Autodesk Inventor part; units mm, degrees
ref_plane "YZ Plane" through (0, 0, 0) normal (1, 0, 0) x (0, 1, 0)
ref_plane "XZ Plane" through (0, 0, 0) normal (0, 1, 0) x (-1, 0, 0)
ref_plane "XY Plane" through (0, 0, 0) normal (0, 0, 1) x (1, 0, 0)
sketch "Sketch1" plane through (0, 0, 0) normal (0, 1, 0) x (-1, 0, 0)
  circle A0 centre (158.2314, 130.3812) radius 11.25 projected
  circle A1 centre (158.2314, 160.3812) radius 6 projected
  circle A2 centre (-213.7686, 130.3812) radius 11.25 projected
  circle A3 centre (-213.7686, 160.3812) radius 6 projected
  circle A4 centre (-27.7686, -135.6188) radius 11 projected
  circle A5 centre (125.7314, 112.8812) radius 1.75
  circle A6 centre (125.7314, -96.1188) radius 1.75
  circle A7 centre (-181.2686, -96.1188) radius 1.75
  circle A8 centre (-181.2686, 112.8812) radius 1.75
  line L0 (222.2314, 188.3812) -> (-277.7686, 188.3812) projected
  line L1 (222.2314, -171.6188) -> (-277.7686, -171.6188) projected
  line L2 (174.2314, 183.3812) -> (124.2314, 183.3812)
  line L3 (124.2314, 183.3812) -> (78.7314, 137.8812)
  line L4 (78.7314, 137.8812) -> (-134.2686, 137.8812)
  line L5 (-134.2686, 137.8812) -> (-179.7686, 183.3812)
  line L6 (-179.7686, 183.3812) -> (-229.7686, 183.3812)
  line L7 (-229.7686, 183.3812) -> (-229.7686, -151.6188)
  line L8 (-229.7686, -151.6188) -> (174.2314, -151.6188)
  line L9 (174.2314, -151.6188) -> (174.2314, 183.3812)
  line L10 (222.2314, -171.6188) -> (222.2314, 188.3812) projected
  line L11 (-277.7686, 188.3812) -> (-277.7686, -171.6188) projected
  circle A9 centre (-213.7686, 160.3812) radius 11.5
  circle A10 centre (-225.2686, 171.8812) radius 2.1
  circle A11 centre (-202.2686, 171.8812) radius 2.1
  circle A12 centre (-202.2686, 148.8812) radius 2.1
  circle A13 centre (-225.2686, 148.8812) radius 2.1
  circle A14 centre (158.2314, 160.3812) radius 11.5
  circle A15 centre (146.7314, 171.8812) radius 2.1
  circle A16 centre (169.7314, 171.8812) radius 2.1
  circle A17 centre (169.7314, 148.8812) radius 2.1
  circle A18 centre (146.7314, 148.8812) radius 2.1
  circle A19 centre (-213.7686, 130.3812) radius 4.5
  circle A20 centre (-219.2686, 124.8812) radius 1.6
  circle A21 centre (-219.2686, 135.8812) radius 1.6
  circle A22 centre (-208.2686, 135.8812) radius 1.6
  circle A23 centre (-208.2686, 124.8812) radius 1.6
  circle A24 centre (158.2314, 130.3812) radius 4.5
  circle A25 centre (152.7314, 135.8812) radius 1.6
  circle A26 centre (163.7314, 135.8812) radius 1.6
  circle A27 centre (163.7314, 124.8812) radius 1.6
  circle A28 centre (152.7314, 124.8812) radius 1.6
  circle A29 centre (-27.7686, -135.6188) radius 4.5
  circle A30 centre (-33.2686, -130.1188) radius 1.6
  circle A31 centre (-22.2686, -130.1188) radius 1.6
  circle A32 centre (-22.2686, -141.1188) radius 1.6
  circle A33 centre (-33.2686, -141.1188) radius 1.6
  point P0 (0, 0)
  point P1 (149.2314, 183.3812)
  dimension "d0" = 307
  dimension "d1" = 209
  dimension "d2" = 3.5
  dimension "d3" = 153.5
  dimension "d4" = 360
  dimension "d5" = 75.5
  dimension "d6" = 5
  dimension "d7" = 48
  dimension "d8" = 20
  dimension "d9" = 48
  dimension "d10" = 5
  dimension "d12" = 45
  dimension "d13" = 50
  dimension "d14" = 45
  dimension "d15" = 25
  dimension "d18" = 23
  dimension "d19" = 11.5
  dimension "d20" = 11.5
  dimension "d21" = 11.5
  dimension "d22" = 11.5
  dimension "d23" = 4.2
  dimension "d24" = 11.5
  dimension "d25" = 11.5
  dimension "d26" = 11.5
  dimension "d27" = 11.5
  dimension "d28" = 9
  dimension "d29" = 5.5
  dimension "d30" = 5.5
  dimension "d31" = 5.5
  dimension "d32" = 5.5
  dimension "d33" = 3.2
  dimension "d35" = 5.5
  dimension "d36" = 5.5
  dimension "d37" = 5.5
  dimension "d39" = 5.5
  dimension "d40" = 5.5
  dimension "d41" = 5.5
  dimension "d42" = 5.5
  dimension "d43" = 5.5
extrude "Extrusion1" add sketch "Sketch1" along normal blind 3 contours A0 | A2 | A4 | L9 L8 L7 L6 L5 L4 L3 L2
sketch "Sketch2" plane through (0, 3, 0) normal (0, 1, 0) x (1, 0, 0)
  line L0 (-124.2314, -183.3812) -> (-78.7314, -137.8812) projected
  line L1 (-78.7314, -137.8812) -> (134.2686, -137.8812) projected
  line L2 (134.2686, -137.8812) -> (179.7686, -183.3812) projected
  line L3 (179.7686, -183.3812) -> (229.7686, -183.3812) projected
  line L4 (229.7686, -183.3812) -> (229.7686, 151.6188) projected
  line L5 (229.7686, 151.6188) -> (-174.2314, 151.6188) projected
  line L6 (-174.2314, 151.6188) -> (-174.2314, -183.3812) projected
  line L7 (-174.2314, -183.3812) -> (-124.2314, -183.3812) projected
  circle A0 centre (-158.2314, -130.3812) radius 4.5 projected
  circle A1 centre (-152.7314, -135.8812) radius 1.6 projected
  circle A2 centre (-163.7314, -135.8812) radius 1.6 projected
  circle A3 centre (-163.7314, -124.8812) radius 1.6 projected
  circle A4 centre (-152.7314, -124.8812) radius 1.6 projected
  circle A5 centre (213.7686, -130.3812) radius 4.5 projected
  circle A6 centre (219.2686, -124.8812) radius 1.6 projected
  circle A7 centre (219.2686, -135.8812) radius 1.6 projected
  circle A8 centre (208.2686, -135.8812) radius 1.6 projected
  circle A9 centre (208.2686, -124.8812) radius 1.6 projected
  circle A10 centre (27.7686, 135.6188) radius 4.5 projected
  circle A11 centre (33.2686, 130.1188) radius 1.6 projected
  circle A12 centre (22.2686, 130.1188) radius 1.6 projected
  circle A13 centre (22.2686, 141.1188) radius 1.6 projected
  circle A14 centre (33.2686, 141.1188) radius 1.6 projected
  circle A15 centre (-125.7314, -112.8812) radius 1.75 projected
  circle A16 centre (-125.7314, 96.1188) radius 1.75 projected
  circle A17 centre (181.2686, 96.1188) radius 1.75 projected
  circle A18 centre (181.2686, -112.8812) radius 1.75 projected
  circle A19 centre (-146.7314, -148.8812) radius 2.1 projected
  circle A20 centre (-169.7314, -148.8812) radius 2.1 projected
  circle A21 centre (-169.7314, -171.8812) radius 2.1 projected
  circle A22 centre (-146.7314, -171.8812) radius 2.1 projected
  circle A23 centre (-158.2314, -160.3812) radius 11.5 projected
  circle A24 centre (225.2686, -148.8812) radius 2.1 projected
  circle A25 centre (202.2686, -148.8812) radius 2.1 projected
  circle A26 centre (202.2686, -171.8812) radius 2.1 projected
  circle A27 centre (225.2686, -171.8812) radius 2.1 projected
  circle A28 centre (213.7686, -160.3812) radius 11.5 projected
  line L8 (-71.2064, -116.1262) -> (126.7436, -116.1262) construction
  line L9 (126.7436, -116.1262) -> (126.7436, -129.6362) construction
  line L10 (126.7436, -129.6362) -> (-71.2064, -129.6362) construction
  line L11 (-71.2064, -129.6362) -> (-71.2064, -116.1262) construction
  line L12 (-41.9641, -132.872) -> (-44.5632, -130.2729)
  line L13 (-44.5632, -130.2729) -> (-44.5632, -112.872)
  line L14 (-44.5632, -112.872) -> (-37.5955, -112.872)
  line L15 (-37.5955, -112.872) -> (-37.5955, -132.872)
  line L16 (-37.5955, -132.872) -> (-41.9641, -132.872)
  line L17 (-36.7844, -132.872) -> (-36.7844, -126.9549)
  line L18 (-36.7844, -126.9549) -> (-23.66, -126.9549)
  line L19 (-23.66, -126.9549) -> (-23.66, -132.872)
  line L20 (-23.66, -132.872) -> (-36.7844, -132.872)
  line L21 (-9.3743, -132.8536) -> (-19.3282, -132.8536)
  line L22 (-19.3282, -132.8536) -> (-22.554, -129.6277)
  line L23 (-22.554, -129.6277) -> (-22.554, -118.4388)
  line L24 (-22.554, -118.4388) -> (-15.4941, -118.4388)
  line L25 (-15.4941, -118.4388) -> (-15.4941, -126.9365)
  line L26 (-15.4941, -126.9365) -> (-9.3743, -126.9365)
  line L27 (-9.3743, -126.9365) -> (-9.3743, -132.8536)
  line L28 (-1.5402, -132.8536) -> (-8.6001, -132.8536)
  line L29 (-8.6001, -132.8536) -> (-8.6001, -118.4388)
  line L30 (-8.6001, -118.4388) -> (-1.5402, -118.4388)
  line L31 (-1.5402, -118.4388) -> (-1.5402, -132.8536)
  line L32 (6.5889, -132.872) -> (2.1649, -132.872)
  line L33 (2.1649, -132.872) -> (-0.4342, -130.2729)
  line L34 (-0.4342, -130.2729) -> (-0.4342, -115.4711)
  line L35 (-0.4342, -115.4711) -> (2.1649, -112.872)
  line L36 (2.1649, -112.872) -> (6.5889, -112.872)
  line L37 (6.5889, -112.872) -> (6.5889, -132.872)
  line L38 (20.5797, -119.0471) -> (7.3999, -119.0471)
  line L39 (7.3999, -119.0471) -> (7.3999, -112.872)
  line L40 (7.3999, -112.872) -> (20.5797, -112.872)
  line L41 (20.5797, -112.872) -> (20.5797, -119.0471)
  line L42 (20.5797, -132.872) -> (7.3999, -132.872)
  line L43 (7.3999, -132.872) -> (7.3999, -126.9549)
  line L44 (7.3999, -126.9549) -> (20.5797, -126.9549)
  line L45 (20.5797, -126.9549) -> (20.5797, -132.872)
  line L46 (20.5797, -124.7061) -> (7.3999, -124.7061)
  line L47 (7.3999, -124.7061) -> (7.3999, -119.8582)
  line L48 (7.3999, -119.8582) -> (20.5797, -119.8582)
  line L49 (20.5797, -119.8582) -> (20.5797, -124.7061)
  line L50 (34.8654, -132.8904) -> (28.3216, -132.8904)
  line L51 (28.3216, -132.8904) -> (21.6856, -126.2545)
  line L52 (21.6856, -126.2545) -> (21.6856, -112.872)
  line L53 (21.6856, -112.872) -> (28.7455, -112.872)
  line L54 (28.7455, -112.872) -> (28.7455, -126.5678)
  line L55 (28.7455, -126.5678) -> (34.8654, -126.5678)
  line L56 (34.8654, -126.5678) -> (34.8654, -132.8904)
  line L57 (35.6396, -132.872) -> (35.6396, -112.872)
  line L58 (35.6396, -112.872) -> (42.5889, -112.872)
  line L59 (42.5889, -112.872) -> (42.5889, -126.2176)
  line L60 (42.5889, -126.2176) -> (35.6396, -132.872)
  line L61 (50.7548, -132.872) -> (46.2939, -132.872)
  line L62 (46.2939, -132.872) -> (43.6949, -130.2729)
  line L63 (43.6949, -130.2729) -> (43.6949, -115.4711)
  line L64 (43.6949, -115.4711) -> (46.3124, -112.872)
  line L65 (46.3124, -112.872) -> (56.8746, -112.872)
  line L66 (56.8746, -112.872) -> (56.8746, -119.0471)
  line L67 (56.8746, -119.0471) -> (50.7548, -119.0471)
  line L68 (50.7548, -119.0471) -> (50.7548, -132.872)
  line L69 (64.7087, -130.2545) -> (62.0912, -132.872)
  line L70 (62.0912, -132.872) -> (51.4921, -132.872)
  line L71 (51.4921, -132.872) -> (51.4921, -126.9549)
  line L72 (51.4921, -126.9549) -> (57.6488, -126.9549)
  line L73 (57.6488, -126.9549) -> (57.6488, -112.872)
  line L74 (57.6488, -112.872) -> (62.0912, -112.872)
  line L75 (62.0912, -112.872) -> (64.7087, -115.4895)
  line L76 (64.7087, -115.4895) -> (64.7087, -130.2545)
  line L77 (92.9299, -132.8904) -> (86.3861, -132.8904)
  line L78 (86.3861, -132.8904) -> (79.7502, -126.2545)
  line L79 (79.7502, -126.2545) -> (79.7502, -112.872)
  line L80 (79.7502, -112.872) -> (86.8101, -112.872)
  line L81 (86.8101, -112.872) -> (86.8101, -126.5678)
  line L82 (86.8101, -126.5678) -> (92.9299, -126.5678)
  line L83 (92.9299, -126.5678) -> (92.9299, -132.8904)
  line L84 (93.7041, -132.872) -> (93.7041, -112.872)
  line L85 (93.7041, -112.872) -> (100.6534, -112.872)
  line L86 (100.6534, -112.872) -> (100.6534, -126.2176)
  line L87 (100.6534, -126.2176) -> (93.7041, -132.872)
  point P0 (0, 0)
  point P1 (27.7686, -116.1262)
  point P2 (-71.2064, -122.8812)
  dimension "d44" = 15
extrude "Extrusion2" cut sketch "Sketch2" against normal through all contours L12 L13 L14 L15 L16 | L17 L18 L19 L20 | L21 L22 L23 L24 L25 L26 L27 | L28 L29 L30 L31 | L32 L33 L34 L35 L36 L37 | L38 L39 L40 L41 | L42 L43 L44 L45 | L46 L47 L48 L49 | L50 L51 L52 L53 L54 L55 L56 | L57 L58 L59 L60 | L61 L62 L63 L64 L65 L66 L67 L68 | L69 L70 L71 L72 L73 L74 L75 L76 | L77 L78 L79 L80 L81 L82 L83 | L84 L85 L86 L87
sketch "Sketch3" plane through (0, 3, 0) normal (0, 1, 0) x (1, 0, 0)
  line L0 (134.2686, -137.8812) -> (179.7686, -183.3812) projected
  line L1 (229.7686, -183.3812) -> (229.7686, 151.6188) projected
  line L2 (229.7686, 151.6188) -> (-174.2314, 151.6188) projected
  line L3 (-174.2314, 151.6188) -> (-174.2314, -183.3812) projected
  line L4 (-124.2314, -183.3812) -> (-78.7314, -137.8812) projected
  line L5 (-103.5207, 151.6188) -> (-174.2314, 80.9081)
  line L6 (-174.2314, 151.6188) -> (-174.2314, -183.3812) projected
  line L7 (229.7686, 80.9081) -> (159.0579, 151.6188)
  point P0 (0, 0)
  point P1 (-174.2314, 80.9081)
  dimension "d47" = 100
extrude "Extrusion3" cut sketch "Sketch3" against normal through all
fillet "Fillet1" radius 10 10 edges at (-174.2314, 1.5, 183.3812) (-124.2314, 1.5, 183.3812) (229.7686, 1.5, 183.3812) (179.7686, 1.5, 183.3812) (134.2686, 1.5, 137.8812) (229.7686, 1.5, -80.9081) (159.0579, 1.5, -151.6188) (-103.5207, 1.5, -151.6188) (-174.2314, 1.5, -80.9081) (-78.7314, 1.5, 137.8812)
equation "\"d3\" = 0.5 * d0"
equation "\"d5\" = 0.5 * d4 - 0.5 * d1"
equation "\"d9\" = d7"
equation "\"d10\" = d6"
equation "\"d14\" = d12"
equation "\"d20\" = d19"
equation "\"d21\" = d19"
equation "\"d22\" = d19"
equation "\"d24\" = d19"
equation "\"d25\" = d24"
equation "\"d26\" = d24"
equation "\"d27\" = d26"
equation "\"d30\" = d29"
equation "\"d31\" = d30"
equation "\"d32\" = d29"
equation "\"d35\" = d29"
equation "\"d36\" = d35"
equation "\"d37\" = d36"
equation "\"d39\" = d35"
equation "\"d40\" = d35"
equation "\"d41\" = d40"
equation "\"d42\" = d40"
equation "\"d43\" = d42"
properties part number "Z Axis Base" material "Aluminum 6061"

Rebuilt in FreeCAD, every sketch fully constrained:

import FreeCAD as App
import Part
import Sketcher


def edges_at(feature, points):
    """Names of the edges that pass closest to the given points."""
    edges = feature.Shape.Edges
    near = lambda p: min(range(len(edges)), key=lambda i: edges[i].distToShape(Part.Vertex(*p))[0])
    return sorted({f"Edge{near(p) + 1}" for p in points})

doc = App.newDocument("Part")
body = doc.addObject("PartDesign::Body", "Body")

# Sketch on XZ plane
sketch1 = doc.addObject("Sketcher::SketchObject", "Sketch")
body.addObject(sketch1)
sketch1.AttachmentSupport = (doc.XZ_Plane, [""])
sketch1.MapMode = "FlatFace"
sketch1.addGeometry([
    Part.LineSegment(App.Vector(-174.2, -151.6, 0), App.Vector(-174.2, 183.4, 0)),  # 0
    Part.LineSegment(App.Vector(-174.2, 183.4, 0), App.Vector(-124.2, 183.4, 0)),  # 1
    Part.LineSegment(App.Vector(-124.2, 183.4, 0), App.Vector(-78.7, 137.9, 0)),  # 2
    Part.LineSegment(App.Vector(-78.7, 137.9, 0), App.Vector(134.3, 137.9, 0)),  # 3
    Part.LineSegment(App.Vector(134.3, 137.9, 0), App.Vector(179.8, 183.4, 0)),  # 4
    Part.LineSegment(App.Vector(179.8, 183.4, 0), App.Vector(229.8, 183.4, 0)),  # 5
    Part.LineSegment(App.Vector(229.8, 183.4, 0), App.Vector(229.8, -151.6, 0)),  # 6
    Part.LineSegment(App.Vector(229.8, -151.6, 0), App.Vector(-174.2, -151.6, 0)),  # 7
    Part.Circle(App.Vector(-152.7, 124.9, 0), App.Vector(0, 0, 1), 1.6),  # 8
    Part.Circle(App.Vector(-158.2, 130.4, 0), App.Vector(0, 0, 1), 4.5),  # 9
    Part.Circle(App.Vector(-152.7, 135.9, 0), App.Vector(0, 0, 1), 1.6),  # 10
    Part.Circle(App.Vector(-163.7, 124.9, 0), App.Vector(0, 0, 1), 1.6),  # 11
    Part.Circle(App.Vector(-163.7, 135.9, 0), App.Vector(0, 0, 1), 1.6),  # 12
    Part.Circle(App.Vector(181.3, -96.1, 0), App.Vector(0, 0, 1), 1.8),  # 13
    Part.Circle(App.Vector(-125.7, -96.1, 0), App.Vector(0, 0, 1), 1.8),  # 14
    Part.Circle(App.Vector(181.3, 112.9, 0), App.Vector(0, 0, 1), 1.8),  # 15
    Part.Circle(App.Vector(225.3, 148.9, 0), App.Vector(0, 0, 1), 2.1),  # 16
    Part.Circle(App.Vector(225.3, 171.9, 0), App.Vector(0, 0, 1), 2.1),  # 17
    Part.Circle(App.Vector(202.3, 148.9, 0), App.Vector(0, 0, 1), 2.1),  # 18
    Part.Circle(App.Vector(213.8, 160.4, 0), App.Vector(0, 0, 1), 11.5),  # 19
    Part.Circle(App.Vector(202.3, 171.9, 0), App.Vector(0, 0, 1), 2.1),  # 20
    Part.Circle(App.Vector(-125.7, 112.9, 0), App.Vector(0, 0, 1), 1.8),  # 21
    Part.Circle(App.Vector(-169.7, 171.9, 0), App.Vector(0, 0, 1), 2.1),  # 22
    Part.Circle(App.Vector(-146.7, 148.9, 0), App.Vector(0, 0, 1), 2.1),  # 23
    Part.Circle(App.Vector(-158.2, 160.4, 0), App.Vector(0, 0, 1), 11.5),  # 24
    Part.Circle(App.Vector(-146.7, 171.9, 0), App.Vector(0, 0, 1), 2.1),  # 25
    Part.Circle(App.Vector(-169.7, 148.9, 0), App.Vector(0, 0, 1), 2.1),  # 26
    Part.Circle(App.Vector(22.3, -130.1, 0), App.Vector(0, 0, 1), 1.6),  # 27
    Part.Circle(App.Vector(33.3, -141.1, 0), App.Vector(0, 0, 1), 1.6),  # 28
    Part.Circle(App.Vector(33.3, -130.1, 0), App.Vector(0, 0, 1), 1.6),  # 29
    Part.Circle(App.Vector(22.3, -141.1, 0), App.Vector(0, 0, 1), 1.6),  # 30
    Part.Circle(App.Vector(27.8, -135.6, 0), App.Vector(0, 0, 1), 4.5),  # 31
    Part.Circle(App.Vector(208.3, 135.9, 0), App.Vector(0, 0, 1), 1.6),  # 32
    Part.Circle(App.Vector(219.3, 124.9, 0), App.Vector(0, 0, 1), 1.6),  # 33
    Part.Circle(App.Vector(219.3, 135.9, 0), App.Vector(0, 0, 1), 1.6),  # 34
    Part.Circle(App.Vector(208.3, 124.9, 0), App.Vector(0, 0, 1), 1.6),  # 35
    Part.Circle(App.Vector(213.8, 130.4, 0), App.Vector(0, 0, 1), 4.5),  # 36
], False)
sketch1.addConstraint([
    Sketcher.Constraint("Coincident", 0, 2, 1, 1),
    Sketcher.Constraint("Coincident", 1, 2, 2, 1),
    Sketcher.Constraint("Coincident", 2, 2, 3, 1),
    Sketcher.Constraint("Coincident", 3, 2, 4, 1),
    Sketcher.Constraint("Coincident", 4, 2, 5, 1),
    Sketcher.Constraint("Coincident", 5, 2, 6, 1),
    Sketcher.Constraint("Coincident", 6, 2, 7, 1),
    Sketcher.Constraint("Coincident", 7, 2, 0, 1),
    Sketcher.Constraint("Vertical", 0),
    Sketcher.Constraint("Horizontal", 1),
    Sketcher.Constraint("Horizontal", 3),
    Sketcher.Constraint("Horizontal", 5),
    Sketcher.Constraint("Vertical", 6),
    Sketcher.Constraint("Horizontal", 7),
    Sketcher.Constraint("Equal", 8, 10),
    Sketcher.Constraint("Equal", 10, 11),
    Sketcher.Constraint("Equal", 11, 12),
    Sketcher.Constraint("Equal", 13, 14),
    Sketcher.Constraint("Equal", 14, 15),
    Sketcher.Constraint("Equal", 16, 17),
    Sketcher.Constraint("Equal", 17, 18),
    Sketcher.Constraint("Equal", 18, 20),
    Sketcher.Constraint("Equal", 15, 21),
    Sketcher.Constraint("Equal", 20, 22),
    Sketcher.Constraint("Equal", 22, 23),
    Sketcher.Constraint("Equal", 19, 24),
    Sketcher.Constraint("Equal", 23, 25),
    Sketcher.Constraint("Equal", 25, 26),
    Sketcher.Constraint("Equal", 12, 27),
    Sketcher.Constraint("Equal", 27, 28),
    Sketcher.Constraint("Equal", 28, 29),
    Sketcher.Constraint("Equal", 29, 30),
    Sketcher.Constraint("Equal", 9, 31),
    Sketcher.Constraint("Equal", 30, 32),
    Sketcher.Constraint("Equal", 32, 33),
    Sketcher.Constraint("Equal", 33, 34),
    Sketcher.Constraint("Equal", 34, 35),
    Sketcher.Constraint("Equal", 31, 36),
    Sketcher.Constraint("Perpendicular", 2, 4),
    Sketcher.Constraint("Horizontal", 8, 3, 11, 3),
    Sketcher.Constraint("Horizontal", 10, 3, 12, 3),
    Sketcher.Constraint("Horizontal", 13, 3, 14, 3),
    Sketcher.Constraint("Horizontal", 16, 3, 18, 3),
    Sketcher.Constraint("Horizontal", 17, 3, 20, 3),
    Sketcher.Constraint("Horizontal", 15, 3, 21, 3),
    Sketcher.Constraint("Horizontal", 20, 3, 22, 3),
    Sketcher.Constraint("Horizontal", 18, 3, 23, 3),
    Sketcher.Constraint("Horizontal", 19, 3, 24, 3),
    Sketcher.Constraint("Horizontal", 22, 3, 25, 3),
    Sketcher.Constraint("Horizontal", 23, 3, 26, 3),
    Sketcher.Constraint("Horizontal", 27, 3, 29, 3),
    Sketcher.Constraint("Horizontal", 28, 3, 30, 3),
    Sketcher.Constraint("Horizontal", 12, 3, 32, 3),
    Sketcher.Constraint("Horizontal", 11, 3, 33, 3),
    Sketcher.Constraint("Horizontal", 32, 3, 34, 3),
    Sketcher.Constraint("Horizontal", 33, 3, 35, 3),
    Sketcher.Constraint("Horizontal", 9, 3, 36, 3),
    Sketcher.Constraint("Horizontal", 1, 2, 4, 2),
    Sketcher.Constraint("Vertical", 8, 3, 10, 3),
    Sketcher.Constraint("Vertical", 11, 3, 12, 3),
    Sketcher.Constraint("Vertical", 13, 3, 15, 3),
    Sketcher.Constraint("Vertical", 16, 3, 17, 3),
    Sketcher.Constraint("Vertical", 18, 3, 20, 3),
    Sketcher.Constraint("Vertical", 14, 3, 21, 3),
    Sketcher.Constraint("Vertical", 9, 3, 24, 3),
    Sketcher.Constraint("Vertical", 23, 3, 25, 3),
    Sketcher.Constraint("Vertical", 22, 3, 26, 3),
    Sketcher.Constraint("Vertical", 28, 3, 29, 3),
    Sketcher.Constraint("Vertical", 27, 3, 30, 3),
    Sketcher.Constraint("Vertical", 33, 3, 34, 3),
    Sketcher.Constraint("Vertical", 32, 3, 35, 3),
    Sketcher.Constraint("Vertical", 19, 3, 36, 3),
    Sketcher.Constraint("Equal", 1, 5),
    Sketcher.Constraint("Equal", 2, 4),
    Sketcher.Constraint("Diameter", 9, 9.0),
    Sketcher.Constraint("Diameter", 19, 23.0),
    Sketcher.Constraint("Diameter", 8, 3.2),
    Sketcher.Constraint("Diameter", 13, 3.5),
    Sketcher.Constraint("Diameter", 16, 4.2),
    Sketcher.Constraint("DistanceX", 1, 1, 1, 2, 50.0),
    Sketcher.Constraint("DistanceY", 13, 3, 15, 3, 209.0),
    Sketcher.Constraint("DistanceY", 15, 3, 10, 3, 23.0),
    Sketcher.Constraint("DistanceY", 16, 3, 17, 3, 23.0),
    Sketcher.Constraint("DistanceX", 18, 3, 16, 3, 23.0),
    Sketcher.Constraint("DistanceX", 22, 3, 25, 3, 23.0),
    Sketcher.Constraint("DistanceY", 28, 3, 13, 3, 45.0),
    Sketcher.Constraint("DistanceY", 24, 3, 0, 2, 23.0),
    Sketcher.Constraint("DistanceY", 21, 3, 2, 2, 25.0),
    Sketcher.Constraint("DistanceX", 9, 3, 8, 3, 5.5),
    Sketcher.Constraint("DistanceY", 8, 3, 9, 3, 5.5),
    Sketcher.Constraint("DistanceY", 9, 3, 10, 3, 5.5),
    Sketcher.Constraint("DistanceX", 11, 3, 9, 3, 5.5),
    Sketcher.Constraint("DistanceX", 19, 3, 16, 3, 11.5),
    Sketcher.Constraint("DistanceY", 16, 3, 19, 3, 11.5),
    Sketcher.Constraint("DistanceX", 22, 3, 9, 3, 11.5),
    Sketcher.Constraint("DistanceX", 27, 3, 31, 3, 5.5),
    Sketcher.Constraint("DistanceY", 31, 3, 27, 3, 5.5),
    Sketcher.Constraint("DistanceX", 31, 3, 28, 3, 5.5),
    Sketcher.Constraint("DistanceY", 28, 3, 31, 3, 5.5),
    Sketcher.Constraint("DistanceX", 31, 3, 13, 3, 153.5),
    Sketcher.Constraint("DistanceX", 32, 3, 19, 3, 5.5),
    Sketcher.Constraint("DistanceX", 19, 3, 33, 3, 5.5),
    Sketcher.Constraint("DistanceX", 3, 1, 3, 2, 213.0),
    Sketcher.Constraint("DistanceX", 7, 2, 7, 1, 404.0),
    Sketcher.Constraint("DistanceY", 0, 1, 0, 2, 335.0),
    Sketcher.Constraint("DistanceX", 8, 3, 13, 3, 334.0),
    Sketcher.Constraint("DistanceX", 8, 3, 14, 3, 27.0),
    Sketcher.Constraint("DistanceX", 15, 3, 16, 3, 44.0),
    Sketcher.Constraint("DistanceX", 0, 2, 24, 3, 16.0),
    Sketcher.Constraint("DistanceX", 8, 3, -1, 1, 152.7314),
    Sketcher.Constraint("DistanceY", -1, 1, 8, 3, 124.8812),
])
pad1 = doc.addObject("PartDesign::Pad", "Pad")
body.addObject(pad1)
pad1.Profile = sketch1
pad1.Length = 3
pad1.Reversed = True

# Sketch on XZ plane
sketch2 = doc.addObject("Sketcher::SketchObject", "Sketch001")
body.addObject(sketch2)
sketch2.AttachmentSupport = (doc.XZ_Plane, [""])
sketch2.MapMode = "FlatFace"
sketch2.AttachmentOffset = App.Placement(App.Vector(0, 0, -3), App.Rotation())
sketch2.addGeometry([
    Part.LineSegment(App.Vector(-44.6, 130.3, 0), App.Vector(-42, 132.9, 0)),  # 0
    Part.LineSegment(App.Vector(-42, 132.9, 0), App.Vector(-37.6, 132.9, 0)),  # 1
    Part.LineSegment(App.Vector(-37.6, 132.9, 0), App.Vector(-37.6, 112.9, 0)),  # 2
    Part.LineSegment(App.Vector(-37.6, 112.9, 0), App.Vector(-44.6, 112.9, 0)),  # 3
    Part.LineSegment(App.Vector(-44.6, 112.9, 0), App.Vector(-44.6, 130.3, 0)),  # 4
    Part.LineSegment(App.Vector(-36.8, 127, 0), App.Vector(-36.8, 132.9, 0)),  # 5
    Part.LineSegment(App.Vector(-36.8, 132.9, 0), App.Vector(-23.7, 132.9, 0)),  # 6
    Part.LineSegment(App.Vector(-23.7, 132.9, 0), App.Vector(-23.7, 127, 0)),  # 7
    Part.LineSegment(App.Vector(-23.7, 127, 0), App.Vector(-36.8, 127, 0)),  # 8
    Part.LineSegment(App.Vector(-19.3, 132.9, 0), App.Vector(-9.4, 132.9, 0)),  # 9
    Part.LineSegment(App.Vector(-9.4, 132.9, 0), App.Vector(-9.4, 126.9, 0)),  # 10
    Part.LineSegment(App.Vector(-9.4, 126.9, 0), App.Vector(-15.5, 126.9, 0)),  # 11
    Part.LineSegment(App.Vector(-15.5, 126.9, 0), App.Vector(-15.5, 118.4, 0)),  # 12
    Part.LineSegment(App.Vector(-15.5, 118.4, 0), App.Vector(-22.6, 118.4, 0)),  # 13
    Part.LineSegment(App.Vector(-22.6, 118.4, 0), App.Vector(-22.6, 129.6, 0)),  # 14
    Part.LineSegment(App.Vector(-22.6, 129.6, 0), App.Vector(-19.3, 132.9, 0)),  # 15
    Part.LineSegment(App.Vector(-8.6, 132.9, 0), App.Vector(-1.5, 132.9, 0)),  # 16
    Part.LineSegment(App.Vector(-1.5, 132.9, 0), App.Vector(-1.5, 118.4, 0)),  # 17
    Part.LineSegment(App.Vector(-1.5, 118.4, 0), App.Vector(-8.6, 118.4, 0)),  # 18
    Part.LineSegment(App.Vector(-8.6, 118.4, 0), App.Vector(-8.6, 132.9, 0)),  # 19
    Part.LineSegment(App.Vector(2.2, 132.9, 0), App.Vector(6.6, 132.9, 0)),  # 20
    Part.LineSegment(App.Vector(6.6, 132.9, 0), App.Vector(6.6, 112.9, 0)),  # 21
    Part.LineSegment(App.Vector(6.6, 112.9, 0), App.Vector(2.2, 112.9, 0)),  # 22
    Part.LineSegment(App.Vector(2.2, 112.9, 0), App.Vector(-0.4, 115.5, 0)),  # 23
    Part.LineSegment(App.Vector(-0.4, 115.5, 0), App.Vector(-0.4, 130.3, 0)),  # 24
    Part.LineSegment(App.Vector(-0.4, 130.3, 0), App.Vector(2.2, 132.9, 0)),  # 25
    Part.LineSegment(App.Vector(7.4, 119, 0), App.Vector(20.6, 119, 0)),  # 26
    Part.LineSegment(App.Vector(20.6, 119, 0), App.Vector(20.6, 112.9, 0)),  # 27
    Part.LineSegment(App.Vector(20.6, 112.9, 0), App.Vector(7.4, 112.9, 0)),  # 28
    Part.LineSegment(App.Vector(7.4, 112.9, 0), App.Vector(7.4, 119, 0)),  # 29
    Part.LineSegment(App.Vector(7.4, 132.9, 0), App.Vector(20.6, 132.9, 0)),  # 30
    Part.LineSegment(App.Vector(20.6, 132.9, 0), App.Vector(20.6, 127, 0)),  # 31
    Part.LineSegment(App.Vector(20.6, 127, 0), App.Vector(7.4, 127, 0)),  # 32
    Part.LineSegment(App.Vector(7.4, 127, 0), App.Vector(7.4, 132.9, 0)),  # 33
    Part.LineSegment(App.Vector(7.4, 124.7, 0), App.Vector(20.6, 124.7, 0)),  # 34
    Part.LineSegment(App.Vector(20.6, 124.7, 0), App.Vector(20.6, 119.9, 0)),  # 35
    Part.LineSegment(App.Vector(20.6, 119.9, 0), App.Vector(7.4, 119.9, 0)),  # 36
    Part.LineSegment(App.Vector(7.4, 119.9, 0), App.Vector(7.4, 124.7, 0)),  # 37
    Part.LineSegment(App.Vector(28.3, 132.9, 0), App.Vector(34.9, 132.9, 0)),  # 38
    Part.LineSegment(App.Vector(34.9, 132.9, 0), App.Vector(34.9, 126.6, 0)),  # 39
    Part.LineSegment(App.Vector(34.9, 126.6, 0), App.Vector(28.7, 126.6, 0)),  # 40
    Part.LineSegment(App.Vector(28.7, 126.6, 0), App.Vector(28.7, 112.9, 0)),  # 41
    Part.LineSegment(App.Vector(28.7, 112.9, 0), App.Vector(21.7, 112.9, 0)),  # 42
    Part.LineSegment(App.Vector(21.7, 112.9, 0), App.Vector(21.7, 126.3, 0)),  # 43
    Part.LineSegment(App.Vector(21.7, 126.3, 0), App.Vector(28.3, 132.9, 0)),  # 44
    Part.LineSegment(App.Vector(35.6, 112.9, 0), App.Vector(35.6, 132.9, 0)),  # 45
    Part.LineSegment(App.Vector(35.6, 132.9, 0), App.Vector(42.6, 126.2, 0)),  # 46
    Part.LineSegment(App.Vector(42.6, 126.2, 0), App.Vector(42.6, 112.9, 0)),  # 47
    Part.LineSegment(App.Vector(42.6, 112.9, 0), App.Vector(35.6, 112.9, 0)),  # 48
    Part.LineSegment(App.Vector(46.3, 132.9, 0), App.Vector(50.8, 132.9, 0)),  # 49
    Part.LineSegment(App.Vector(50.8, 132.9, 0), App.Vector(50.8, 119, 0)),  # 50
    Part.LineSegment(App.Vector(50.8, 119, 0), App.Vector(56.9, 119, 0)),  # 51
    Part.LineSegment(App.Vector(56.9, 119, 0), App.Vector(56.9, 112.9, 0)),  # 52
    Part.LineSegment(App.Vector(56.9, 112.9, 0), App.Vector(46.3, 112.9, 0)),  # 53
    Part.LineSegment(App.Vector(46.3, 112.9, 0), App.Vector(43.7, 115.5, 0)),  # 54
    Part.LineSegment(App.Vector(43.7, 115.5, 0), App.Vector(43.7, 130.3, 0)),  # 55
    Part.LineSegment(App.Vector(43.7, 130.3, 0), App.Vector(46.3, 132.9, 0)),  # 56
    Part.LineSegment(App.Vector(62.1, 132.9, 0), App.Vector(64.7, 130.3, 0)),  # 57
    Part.LineSegment(App.Vector(64.7, 130.3, 0), App.Vector(64.7, 115.5, 0)),  # 58
    Part.LineSegment(App.Vector(64.7, 115.5, 0), App.Vector(62.1, 112.9, 0)),  # 59
    Part.LineSegment(App.Vector(62.1, 112.9, 0), App.Vector(57.6, 112.9, 0)),  # 60
    Part.LineSegment(App.Vector(57.6, 112.9, 0), App.Vector(57.6, 127, 0)),  # 61
    Part.LineSegment(App.Vector(57.6, 127, 0), App.Vector(51.5, 127, 0)),  # 62
    Part.LineSegment(App.Vector(51.5, 127, 0), App.Vector(51.5, 132.9, 0)),  # 63
    Part.LineSegment(App.Vector(51.5, 132.9, 0), App.Vector(62.1, 132.9, 0)),  # 64
    Part.LineSegment(App.Vector(86.4, 132.9, 0), App.Vector(92.9, 132.9, 0)),  # 65
    Part.LineSegment(App.Vector(92.9, 132.9, 0), App.Vector(92.9, 126.6, 0)),  # 66
    Part.LineSegment(App.Vector(92.9, 126.6, 0), App.Vector(86.8, 126.6, 0)),  # 67
    Part.LineSegment(App.Vector(86.8, 126.6, 0), App.Vector(86.8, 112.9, 0)),  # 68
    Part.LineSegment(App.Vector(86.8, 112.9, 0), App.Vector(79.8, 112.9, 0)),  # 69
    Part.LineSegment(App.Vector(79.8, 112.9, 0), App.Vector(79.8, 126.3, 0)),  # 70
    Part.LineSegment(App.Vector(79.8, 126.3, 0), App.Vector(86.4, 132.9, 0)),  # 71
    Part.LineSegment(App.Vector(93.7, 112.9, 0), App.Vector(93.7, 132.9, 0)),  # 72
    Part.LineSegment(App.Vector(93.7, 132.9, 0), App.Vector(100.7, 126.2, 0)),  # 73
    Part.LineSegment(App.Vector(100.7, 126.2, 0), App.Vector(100.7, 112.9, 0)),  # 74
    Part.LineSegment(App.Vector(100.7, 112.9, 0), App.Vector(93.7, 112.9, 0)),  # 75
], False)
sketch2.addConstraint([
    Sketcher.Constraint("Coincident", 0, 2, 1, 1),
    Sketcher.Constraint("Coincident", 1, 2, 2, 1),
    Sketcher.Constraint("Coincident", 2, 2, 3, 1),
    Sketcher.Constraint("Coincident", 3, 2, 4, 1),
    Sketcher.Constraint("Coincident", 4, 2, 0, 1),
    Sketcher.Constraint("Coincident", 5, 2, 6, 1),
    Sketcher.Constraint("Coincident", 6, 2, 7, 1),
    Sketcher.Constraint("Coincident", 7, 2, 8, 1),
    Sketcher.Constraint("Coincident", 8, 2, 5, 1),
    Sketcher.Constraint("Coincident", 9, 2, 10, 1),
    Sketcher.Constraint("Coincident", 10, 2, 11, 1),
    Sketcher.Constraint("Coincident", 11, 2, 12, 1),
    Sketcher.Constraint("Coincident", 12, 2, 13, 1),
    Sketcher.Constraint("Coincident", 13, 2, 14, 1),
    Sketcher.Constraint("Coincident", 14, 2, 15, 1),
    Sketcher.Constraint("Coincident", 15, 2, 9, 1),
    Sketcher.Constraint("Coincident", 16, 2, 17, 1),
    Sketcher.Constraint("Coincident", 17, 2, 18, 1),
    Sketcher.Constraint("Coincident", 18, 2, 19, 1),
    Sketcher.Constraint("Coincident", 19, 2, 16, 1),
    Sketcher.Constraint("Coincident", 20, 2, 21, 1),
    Sketcher.Constraint("Coincident", 21, 2, 22, 1),
    Sketcher.Constraint("Coincident", 22, 2, 23, 1),
    Sketcher.Constraint("Coincident", 23, 2, 24, 1),
    Sketcher.Constraint("Coincident", 24, 2, 25, 1),
    Sketcher.Constraint("Coincident", 25, 2, 20, 1),
    Sketcher.Constraint("Coincident", 26, 2, 27, 1),
    Sketcher.Constraint("Coincident", 27, 2, 28, 1),
    Sketcher.Constraint("Coincident", 28, 2, 29, 1),
    Sketcher.Constraint("Coincident", 29, 2, 26, 1),
    Sketcher.Constraint("Coincident", 30, 2, 31, 1),
    Sketcher.Constraint("Coincident", 31, 2, 32, 1),
    Sketcher.Constraint("Coincident", 32, 2, 33, 1),
    Sketcher.Constraint("Coincident", 33, 2, 30, 1),
    Sketcher.Constraint("Coincident", 34, 2, 35, 1),
    Sketcher.Constraint("Coincident", 35, 2, 36, 1),
    Sketcher.Constraint("Coincident", 36, 2, 37, 1),
    Sketcher.Constraint("Coincident", 37, 2, 34, 1),
    Sketcher.Constraint("Coincident", 38, 2, 39, 1),
    Sketcher.Constraint("Coincident", 39, 2, 40, 1),
    Sketcher.Constraint("Coincident", 40, 2, 41, 1),
    Sketcher.Constraint("Coincident", 41, 2, 42, 1),
    Sketcher.Constraint("Coincident", 42, 2, 43, 1),
    Sketcher.Constraint("Coincident", 43, 2, 44, 1),
    Sketcher.Constraint("Coincident", 44, 2, 38, 1),
    Sketcher.Constraint("Coincident", 45, 2, 46, 1),
    Sketcher.Constraint("Coincident", 46, 2, 47, 1),
    Sketcher.Constraint("Coincident", 47, 2, 48, 1),
    Sketcher.Constraint("Coincident", 48, 2, 45, 1),
    Sketcher.Constraint("Coincident", 49, 2, 50, 1),
    Sketcher.Constraint("Coincident", 50, 2, 51, 1),
    Sketcher.Constraint("Coincident", 51, 2, 52, 1),
    Sketcher.Constraint("Coincident", 52, 2, 53, 1),
    Sketcher.Constraint("Coincident", 53, 2, 54, 1),
    Sketcher.Constraint("Coincident", 54, 2, 55, 1),
    Sketcher.Constraint("Coincident", 55, 2, 56, 1),
    Sketcher.Constraint("Coincident", 56, 2, 49, 1),
    Sketcher.Constraint("Coincident", 57, 2, 58, 1),
    Sketcher.Constraint("Coincident", 58, 2, 59, 1),
    Sketcher.Constraint("Coincident", 59, 2, 60, 1),
    Sketcher.Constraint("Coincident", 60, 2, 61, 1),
    Sketcher.Constraint("Coincident", 61, 2, 62, 1),
    Sketcher.Constraint("Coincident", 62, 2, 63, 1),
    Sketcher.Constraint("Coincident", 63, 2, 64, 1),
    Sketcher.Constraint("Coincident", 64, 2, 57, 1),
    Sketcher.Constraint("Coincident", 65, 2, 66, 1),
    Sketcher.Constraint("Coincident", 66, 2, 67, 1),
    Sketcher.Constraint("Coincident", 67, 2, 68, 1),
    Sketcher.Constraint("Coincident", 68, 2, 69, 1),
    Sketcher.Constraint("Coincident", 69, 2, 70, 1),
    Sketcher.Constraint("Coincident", 70, 2, 71, 1),
    Sketcher.Constraint("Coincident", 71, 2, 65, 1),
    Sketcher.Constraint("Coincident", 72, 2, 73, 1),
    Sketcher.Constraint("Coincident", 73, 2, 74, 1),
    Sketcher.Constraint("Coincident", 74, 2, 75, 1),
    Sketcher.Constraint("Coincident", 75, 2, 72, 1),
    Sketcher.Constraint("Horizontal", 1),
    Sketcher.Constraint("Vertical", 2),
    Sketcher.Constraint("Horizontal", 3),
    Sketcher.Constraint("Vertical", 4),
    Sketcher.Constraint("Vertical", 5),
    Sketcher.Constraint("Horizontal", 6),
    Sketcher.Constraint("Vertical", 7),
    Sketcher.Constraint("Horizontal", 8),
    Sketcher.Constraint("Horizontal", 9),
    Sketcher.Constraint("Vertical", 10),
    Sketcher.Constraint("Horizontal", 11),
    Sketcher.Constraint("Vertical", 12),
    Sketcher.Constraint("Horizontal", 13),
    Sketcher.Constraint("Vertical", 14),
    Sketcher.Constraint("Horizontal", 16),
    Sketcher.Constraint("Vertical", 17),
    Sketcher.Constraint("Horizontal", 18),
    Sketcher.Constraint("Vertical", 19),
    Sketcher.Constraint("Horizontal", 20),
    Sketcher.Constraint("Vertical", 21),
    Sketcher.Constraint("Horizontal", 22),
    Sketcher.Constraint("Vertical", 24),
    Sketcher.Constraint("Horizontal", 26),
    Sketcher.Constraint("Vertical", 27),
    Sketcher.Constraint("Horizontal", 28),
    Sketcher.Constraint("Vertical", 29),
    Sketcher.Constraint("Horizontal", 30),
    Sketcher.Constraint("Vertical", 31),
    Sketcher.Constraint("Horizontal", 32),
    Sketcher.Constraint("Vertical", 33),
    Sketcher.Constraint("Horizontal", 34),
    Sketcher.Constraint("Vertical", 35),
    Sketcher.Constraint("Horizontal", 36),
    Sketcher.Constraint("Vertical", 37),
    Sketcher.Constraint("Horizontal", 38),
    Sketcher.Constraint("Vertical", 39),
    Sketcher.Constraint("Horizontal", 40),
    Sketcher.Constraint("Vertical", 41),
    Sketcher.Constraint("Horizontal", 42),
    Sketcher.Constraint("Vertical", 43),
    Sketcher.Constraint("Vertical", 45),
    Sketcher.Constraint("Vertical", 47),
    Sketcher.Constraint("Horizontal", 48),
    Sketcher.Constraint("Horizontal", 49),
    Sketcher.Constraint("Vertical", 50),
    Sketcher.Constraint("Horizontal", 51),
    Sketcher.Constraint("Vertical", 52),
    Sketcher.Constraint("Horizontal", 53),
    Sketcher.Constraint("Vertical", 55),
    Sketcher.Constraint("Vertical", 58),
    Sketcher.Constraint("Horizontal", 60),
    Sketcher.Constraint("Vertical", 61),
    Sketcher.Constraint("Horizontal", 62),
    Sketcher.Constraint("Vertical", 63),
    Sketcher.Constraint("Horizontal", 64),
    Sketcher.Constraint("Horizontal", 65),
    Sketcher.Constraint("Vertical", 66),
    Sketcher.Constraint("Horizontal", 67),
    Sketcher.Constraint("Vertical", 68),
    Sketcher.Constraint("Horizontal", 69),
    Sketcher.Constraint("Vertical", 70),
    Sketcher.Constraint("Vertical", 72),
    Sketcher.Constraint("Vertical", 74),
    Sketcher.Constraint("Horizontal", 75),
    Sketcher.Constraint("Parallel", 0, 15),
    Sketcher.Constraint("Perpendicular", 15, 23),
    Sketcher.Constraint("Perpendicular", 23, 25),
    Sketcher.Constraint("Parallel", 25, 44),
    Sketcher.Constraint("Parallel", 44, 56),
    Sketcher.Constraint("Perpendicular", 56, 57),
    Sketcher.Constraint("Perpendicular", 57, 59),
    Sketcher.Constraint("Parallel", 59, 71),
    Sketcher.Constraint("Parallel", 46, 73),
    Sketcher.Constraint("Horizontal", 1, 2, 5, 2),
    Sketcher.Constraint("Horizontal", 15, 2, 16, 2),
    Sketcher.Constraint("Horizontal", 13, 2, 17, 2),
    Sketcher.Constraint("Horizontal", 6, 2, 20, 2),
    Sketcher.Constraint("Horizontal", 3, 2, 21, 2),
    Sketcher.Constraint("Horizontal", 4, 2, 24, 2),
    Sketcher.Constraint("Horizontal", 22, 2, 27, 2),
    Sketcher.Constraint("Horizontal", 25, 2, 30, 2),
    Sketcher.Constraint("Horizontal", 8, 2, 31, 2),
    Sketcher.Constraint("Horizontal", 28, 2, 41, 2),
    Sketcher.Constraint("Horizontal", 33, 2, 45, 2),
    Sketcher.Constraint("Horizontal", 42, 2, 47, 2),
    Sketcher.Constraint("Horizontal", 45, 2, 49, 2),
    Sketcher.Constraint("Horizontal", 29, 2, 50, 2),
    Sketcher.Constraint("Horizontal", 48, 2, 52, 2),
    Sketcher.Constraint("Horizontal", 23, 2, 54, 2),
    Sketcher.Constraint("Horizontal", 24, 2, 55, 2),
    Sketcher.Constraint("Horizontal", 53, 2, 59, 2),
    Sketcher.Constraint("Horizontal", 32, 2, 61, 2),
    Sketcher.Constraint("Horizontal", 56, 2, 63, 2),
    Sketcher.Constraint("Horizontal", 44, 2, 65, 2),
    Sketcher.Constraint("Horizontal", 40, 2, 66, 2),
    Sketcher.Constraint("Horizontal", 60, 2, 68, 2),
    Sketcher.Constraint("Horizontal", 43, 2, 70, 2),
    Sketcher.Constraint("Horizontal", 64, 2, 72, 2),
    Sketcher.Constraint("Horizontal", 46, 2, 73, 2),
    Sketcher.Constraint("Horizontal", 69, 2, 74, 2),
    Sketcher.Constraint("Vertical", 22, 2, 25, 2),
    Sketcher.Constraint("Vertical", 27, 2, 30, 2),
    Sketcher.Constraint("Vertical", 29, 2, 32, 2),
    Sketcher.Constraint("Vertical", 31, 2, 34, 2),
    Sketcher.Constraint("Vertical", 33, 2, 36, 2),
    Sketcher.Constraint("Vertical", 59, 2, 64, 2),
    Sketcher.Constraint("Equal", 13, 16),
    Sketcher.Constraint("Equal", 11, 40),
    Sketcher.Constraint("Equal", 18, 42),
    Sketcher.Constraint("Equal", 40, 51),
    Sketcher.Constraint("Equal", 38, 65),
    Sketcher.Constraint("Equal", 51, 67),
    Sketcher.Constraint("Equal", 7, 10),
    Sketcher.Constraint("Equal", 0, 23),
    Sketcher.Constraint("DistanceY", 2, 2, 2, 1, 20.0),
    Sketcher.Constraint("DistanceX", 13, 2, 13, 1, 7.06),
    Sketcher.Constraint("DistanceX", 40, 2, 40, 1, 6.12),
    Sketcher.Constraint("DistanceX", 18, 2, -1, 1, 8.6),
    Sketcher.Constraint("DistanceX", -1, 1, 28, 2, 7.4),
    Sketcher.Constraint("DistanceX", 9, 1, 9, 2, 9.954),
    Sketcher.Constraint("DistanceX", 20, 1, 20, 2, 4.424),
    Sketcher.Constraint("DistanceX", 49, 1, 49, 2, 4.461),
    Sketcher.Constraint("DistanceX", 64, 1, 64, 2, 10.599),
    Sketcher.Constraint("DistanceY", 4, 1, 4, 2, 17.401),
    Sketcher.Constraint("DistanceY", 5, 1, 5, 2, 5.917),
    Sketcher.Constraint("DistanceY", 14, 1, 14, 2, 11.189),
    Sketcher.Constraint("DistanceY", 27, 2, 27, 1, 6.175),
    Sketcher.Constraint("DistanceY", 35, 2, 35, 1, 4.848),
    Sketcher.Constraint("DistanceY", 58, 2, 58, 1, 14.765),
    Sketcher.Constraint("DistanceX", 6, 2, -1, 1, 23.66),
    Sketcher.Constraint("DistanceX", -1, 1, 65, 2, 92.93),
    Sketcher.Constraint("DistanceX", 1, 1, 1, 2, 4.3686),
    Sketcher.Constraint("DistanceX", 6, 1, 6, 2, 13.1244),
    Sketcher.Constraint("DistanceX", 26, 1, 26, 2, 13.1798),
    Sketcher.Constraint("DistanceX", 38, 1, 38, 2, 6.5438),
    Sketcher.Constraint("DistanceX", 48, 2, 48, 1, 6.9493),
    Sketcher.Constraint("DistanceX", 53, 2, 53, 1, 10.5622),
    Sketcher.Constraint("DistanceX", 60, 2, 60, 1, 4.4424),
    Sketcher.Constraint("DistanceY", 39, 2, 39, 1, 6.3226),
    Sketcher.Constraint("DistanceY", 41, 2, 41, 1, 13.6958),
    Sketcher.Constraint("DistanceY", 47, 2, 47, 1, 13.3456),
    Sketcher.Constraint("DistanceX", 0, 2, -1, 1, 41.964),
    Sketcher.Constraint("DistanceY", -1, 1, 0, 2, 132.872),
    Sketcher.Constraint("DistanceX", 11, 2, -1, 1, 15.494),
    Sketcher.Constraint("DistanceX", -1, 1, 20, 2, 6.589),
    Sketcher.Constraint("DistanceY", -1, 1, 34, 2, 124.706),
    Sketcher.Constraint("DistanceX", -1, 1, 46, 2, 42.589),
    Sketcher.Constraint("DistanceX", -1, 1, 54, 2, 43.695),
    Sketcher.Constraint("DistanceX", -1, 1, 62, 2, 51.492),
    Sketcher.Constraint("DistanceX", -1, 1, 72, 2, 93.704),
    Sketcher.Constraint("DistanceY", -1, 1, 9, 2, 132.8536),
    Sketcher.Constraint("DistanceX", -1, 1, 38, 2, 34.8654),
])
pocket1 = doc.addObject("PartDesign::Pocket", "Pocket")
body.addObject(pocket1)
pocket1.Profile = sketch2
pocket1.Type = "ThroughAll"
pocket1.Reversed = True

# Sketch on XZ plane
sketch3 = doc.addObject("Sketcher::SketchObject", "Sketch002")
body.addObject(sketch3)
sketch3.AttachmentSupport = (doc.XZ_Plane, [""])
sketch3.MapMode = "FlatFace"
sketch3.AttachmentOffset = App.Placement(App.Vector(0, 0, -3), App.Rotation())
sketch3.addGeometry([
    Part.LineSegment(App.Vector(159, -152, 0), App.Vector(230, -81, 0)),  # 0
    Part.LineSegment(App.Vector(230, -81, 0), App.Vector(230, -152, 0)),  # 1
    Part.LineSegment(App.Vector(230, -152, 0), App.Vector(159, -152, 0)),  # 2
    Part.LineSegment(App.Vector(-174, -81, 0), App.Vector(-104, -152, 0)),  # 3
    Part.LineSegment(App.Vector(-104, -152, 0), App.Vector(-174, -152, 0)),  # 4
    Part.LineSegment(App.Vector(-174, -152, 0), App.Vector(-174, -81, 0)),  # 5
], False)
sketch3.addConstraint([
    Sketcher.Constraint("Coincident", 0, 2, 1, 1),
    Sketcher.Constraint("Coincident", 1, 2, 2, 1),
    Sketcher.Constraint("Coincident", 2, 2, 0, 1),
    Sketcher.Constraint("Coincident", 3, 2, 4, 1),
    Sketcher.Constraint("Coincident", 4, 2, 5, 1),
    Sketcher.Constraint("Coincident", 5, 2, 3, 1),
    Sketcher.Constraint("Vertical", 1),
    Sketcher.Constraint("Horizontal", 2),
    Sketcher.Constraint("Horizontal", 4),
    Sketcher.Constraint("Vertical", 5),
    Sketcher.Constraint("Perpendicular", 0, 3),
    Sketcher.Constraint("Horizontal", 2, 2, 3, 2),
    Sketcher.Constraint("Horizontal", 0, 2, 5, 2),
    Sketcher.Constraint("Equal", 2, 4),
    Sketcher.Constraint("Distance", 0, 100.0),
    Sketcher.Constraint("DistanceX", 4, 2, 1, 2, 404.0),
    Sketcher.Constraint("DistanceY", 0, 2, -1, 1, 80.908),
    Sketcher.Constraint("DistanceX", -1, 1, 2, 2, 159.058),
])
pocket2 = doc.addObject("PartDesign::Pocket", "Pocket001")
body.addObject(pocket2)
pocket2.Profile = sketch3
pocket2.Type = "ThroughAll"
pocket2.Reversed = True
doc.recompute()

fillet = doc.addObject("PartDesign::Fillet", "Fillet")
body.addObject(fillet)
fillet.Base = (pocket2, edges_at(pocket2, [
    (-174.231, 1.5, 183.381),
    (-124.231, 1.5, 183.381),
    (229.769, 1.5, 183.381),
    (179.769, 1.5, 183.381),
    (134.269, 1.5, 137.881),
    (229.769, 1.5, -80.908),
    (159.058, 1.5, -151.619),
    (-103.521, 1.5, -151.619),
    (-174.231, 1.5, -80.908),
    (-78.731, 1.5, 137.881),
]))
fillet.Radius = 10

doc.recompute()
